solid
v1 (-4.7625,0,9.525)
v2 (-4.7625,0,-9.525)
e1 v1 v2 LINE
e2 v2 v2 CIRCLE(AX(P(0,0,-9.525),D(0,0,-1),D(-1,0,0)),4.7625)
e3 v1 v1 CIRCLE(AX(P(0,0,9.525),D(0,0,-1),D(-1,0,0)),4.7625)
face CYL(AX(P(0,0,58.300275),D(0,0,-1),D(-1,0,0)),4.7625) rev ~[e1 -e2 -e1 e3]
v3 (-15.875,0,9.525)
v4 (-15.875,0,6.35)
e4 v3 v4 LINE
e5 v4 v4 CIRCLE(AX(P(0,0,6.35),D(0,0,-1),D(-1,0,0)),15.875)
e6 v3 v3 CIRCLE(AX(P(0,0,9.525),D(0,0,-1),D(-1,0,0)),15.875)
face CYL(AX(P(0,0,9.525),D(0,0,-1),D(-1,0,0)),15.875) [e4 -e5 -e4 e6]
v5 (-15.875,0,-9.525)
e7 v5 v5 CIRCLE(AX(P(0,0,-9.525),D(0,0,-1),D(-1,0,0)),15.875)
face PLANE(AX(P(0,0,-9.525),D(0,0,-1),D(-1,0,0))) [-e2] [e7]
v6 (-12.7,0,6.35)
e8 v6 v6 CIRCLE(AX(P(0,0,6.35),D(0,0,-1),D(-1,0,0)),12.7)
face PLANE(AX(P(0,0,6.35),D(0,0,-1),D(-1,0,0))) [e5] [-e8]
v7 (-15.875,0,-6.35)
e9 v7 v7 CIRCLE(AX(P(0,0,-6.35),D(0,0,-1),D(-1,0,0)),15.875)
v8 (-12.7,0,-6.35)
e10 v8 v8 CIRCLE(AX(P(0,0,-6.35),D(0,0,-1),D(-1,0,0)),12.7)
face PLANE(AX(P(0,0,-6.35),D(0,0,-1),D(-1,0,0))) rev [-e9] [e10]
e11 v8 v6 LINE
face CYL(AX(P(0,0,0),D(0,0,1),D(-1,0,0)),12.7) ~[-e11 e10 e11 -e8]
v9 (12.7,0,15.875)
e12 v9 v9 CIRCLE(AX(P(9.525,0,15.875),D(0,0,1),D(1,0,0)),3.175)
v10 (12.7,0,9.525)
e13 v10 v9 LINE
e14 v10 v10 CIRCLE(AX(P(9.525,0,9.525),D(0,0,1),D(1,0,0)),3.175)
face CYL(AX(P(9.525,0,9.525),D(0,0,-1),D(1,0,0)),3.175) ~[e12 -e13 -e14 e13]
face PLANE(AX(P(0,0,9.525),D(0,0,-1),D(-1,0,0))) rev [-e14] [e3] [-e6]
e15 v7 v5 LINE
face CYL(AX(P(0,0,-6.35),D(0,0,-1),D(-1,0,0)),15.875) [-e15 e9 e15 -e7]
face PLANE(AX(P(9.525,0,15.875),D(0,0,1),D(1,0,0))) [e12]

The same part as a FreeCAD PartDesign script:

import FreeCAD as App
import Part
import Sketcher
from FreeCAD import Vector
Q = App.Units.Quantity


def add_polygon(sketch, points):
    """Adds a closed chain of lines whose ends are joined by coincident constraints."""
    first, n = sketch.GeometryCount, len(points)
    for a, b in zip(points, points[1:] + points[:1]):
        sketch.addGeometry(Part.LineSegment(App.Vector(*a, 0), App.Vector(*b, 0)), False)
    for i in range(n):
        sketch.addConstraint(Sketcher.Constraint("Coincident", first + i, 2, first + (i + 1) % n, 1))

doc = App.newDocument("Part")
body = doc.addObject("PartDesign::Body", "Body")

# Sketch on XZ plane
sketch1 = doc.addObject("Sketcher::SketchObject", "Sketch")
body.addObject(sketch1)
sketch1.AttachmentSupport = (doc.XZ_Plane, [""])
sketch1.MapMode = "FlatFace"
add_polygon(sketch1, [(-12.7, 6.3), (-12.7, -6.3), (-15.9, -6.3), (-15.9, -9.5), (0, -9.5), (0, 9.5), (-15.9, 9.5), (-15.9, 6.3)])  # lines 0-7
sketch1.addConstraint([
    Sketcher.Constraint("Vertical", 0),
    Sketcher.Constraint("Horizontal", 1),
    Sketcher.Constraint("Vertical", 2),
    Sketcher.Constraint("Horizontal", 3),
    Sketcher.Constraint("Vertical", 4),
    Sketcher.Constraint("Horizontal", 5),
    Sketcher.Constraint("Vertical", 6),
    Sketcher.Constraint("Horizontal", 7),
    Sketcher.Constraint("Symmetric", 3, 2, 4, 2, -1, 1),
    Sketcher.Constraint("Symmetric", 1, 2, 6, 2, -1),
    Sketcher.Constraint("Equal", 7, 2),
    Sketcher.Constraint("DistanceY", 0, 2, 0, 1, Q("0.5 in")),
    Sketcher.Constraint("DistanceY", 4, 1, 4, 2, Q("0.75 in")),
    Sketcher.Constraint("DistanceX", 0, 2, -1, 1, Q("0.5 in")),
])
revolution = doc.addObject("PartDesign::Revolution", "Revolution")
body.addObject(revolution)
revolution.Profile = sketch1
revolution.ReferenceAxis = (sketch1, ["V_Axis"])
revolution.Angle = 360

# Sketch on XY plane
sketch2 = doc.addObject("Sketcher::SketchObject", "Sketch001")
body.addObject(sketch2)
sketch2.AttachmentSupport = (doc.XY_Plane, [""])
sketch2.MapMode = "FlatFace"
sketch2.AttachmentOffset = App.Placement(Vector(0, 0, 0.375 * 25.4), App.Rotation())
sketch2.addGeometry(Part.Circle(Vector(0, 0, 0), Vector(0, 0, 1), 4.8), False)
sketch2.addConstraint([
    Sketcher.Constraint("Coincident", 0, 3, -1, 1),
    Sketcher.Constraint("Diameter", 0, Q("0.375 in")),
])
doc.recompute()
hole = doc.addObject("PartDesign::Hole", "Hole")
body.addObject(hole)
hole.Profile = sketch2
hole.ThreadType = "None"
hole.Diameter = Q("0.375 in")
hole.DepthType = "ThroughAll"

# Sketch on XY plane
sketch3 = doc.addObject("Sketcher::SketchObject", "Sketch002")
body.addObject(sketch3)
sketch3.AttachmentSupport = (doc.XY_Plane, [""])
sketch3.MapMode = "FlatFace"
sketch3.AttachmentOffset = App.Placement(Vector(0, 0, 0.375 * 25.4), App.Rotation())
sketch3.addGeometry(Part.Circle(Vector(9.5, 0, 0), Vector(0, 0, 1), 3.2), False)
sketch3.addConstraint([
    Sketcher.Constraint("PointOnObject", 0, 3, -1),
    Sketcher.Constraint("Diameter", 0, Q("0.25 in")),
    Sketcher.Constraint("DistanceX", -1, 1, 0, 3, Q("0.375 in")),
])
pad1 = doc.addObject("PartDesign::Pad", "Pad")
body.addObject(pad1)
pad1.Profile = sketch3
pad1.Length = Q("0.25 in")

doc.recompute()
